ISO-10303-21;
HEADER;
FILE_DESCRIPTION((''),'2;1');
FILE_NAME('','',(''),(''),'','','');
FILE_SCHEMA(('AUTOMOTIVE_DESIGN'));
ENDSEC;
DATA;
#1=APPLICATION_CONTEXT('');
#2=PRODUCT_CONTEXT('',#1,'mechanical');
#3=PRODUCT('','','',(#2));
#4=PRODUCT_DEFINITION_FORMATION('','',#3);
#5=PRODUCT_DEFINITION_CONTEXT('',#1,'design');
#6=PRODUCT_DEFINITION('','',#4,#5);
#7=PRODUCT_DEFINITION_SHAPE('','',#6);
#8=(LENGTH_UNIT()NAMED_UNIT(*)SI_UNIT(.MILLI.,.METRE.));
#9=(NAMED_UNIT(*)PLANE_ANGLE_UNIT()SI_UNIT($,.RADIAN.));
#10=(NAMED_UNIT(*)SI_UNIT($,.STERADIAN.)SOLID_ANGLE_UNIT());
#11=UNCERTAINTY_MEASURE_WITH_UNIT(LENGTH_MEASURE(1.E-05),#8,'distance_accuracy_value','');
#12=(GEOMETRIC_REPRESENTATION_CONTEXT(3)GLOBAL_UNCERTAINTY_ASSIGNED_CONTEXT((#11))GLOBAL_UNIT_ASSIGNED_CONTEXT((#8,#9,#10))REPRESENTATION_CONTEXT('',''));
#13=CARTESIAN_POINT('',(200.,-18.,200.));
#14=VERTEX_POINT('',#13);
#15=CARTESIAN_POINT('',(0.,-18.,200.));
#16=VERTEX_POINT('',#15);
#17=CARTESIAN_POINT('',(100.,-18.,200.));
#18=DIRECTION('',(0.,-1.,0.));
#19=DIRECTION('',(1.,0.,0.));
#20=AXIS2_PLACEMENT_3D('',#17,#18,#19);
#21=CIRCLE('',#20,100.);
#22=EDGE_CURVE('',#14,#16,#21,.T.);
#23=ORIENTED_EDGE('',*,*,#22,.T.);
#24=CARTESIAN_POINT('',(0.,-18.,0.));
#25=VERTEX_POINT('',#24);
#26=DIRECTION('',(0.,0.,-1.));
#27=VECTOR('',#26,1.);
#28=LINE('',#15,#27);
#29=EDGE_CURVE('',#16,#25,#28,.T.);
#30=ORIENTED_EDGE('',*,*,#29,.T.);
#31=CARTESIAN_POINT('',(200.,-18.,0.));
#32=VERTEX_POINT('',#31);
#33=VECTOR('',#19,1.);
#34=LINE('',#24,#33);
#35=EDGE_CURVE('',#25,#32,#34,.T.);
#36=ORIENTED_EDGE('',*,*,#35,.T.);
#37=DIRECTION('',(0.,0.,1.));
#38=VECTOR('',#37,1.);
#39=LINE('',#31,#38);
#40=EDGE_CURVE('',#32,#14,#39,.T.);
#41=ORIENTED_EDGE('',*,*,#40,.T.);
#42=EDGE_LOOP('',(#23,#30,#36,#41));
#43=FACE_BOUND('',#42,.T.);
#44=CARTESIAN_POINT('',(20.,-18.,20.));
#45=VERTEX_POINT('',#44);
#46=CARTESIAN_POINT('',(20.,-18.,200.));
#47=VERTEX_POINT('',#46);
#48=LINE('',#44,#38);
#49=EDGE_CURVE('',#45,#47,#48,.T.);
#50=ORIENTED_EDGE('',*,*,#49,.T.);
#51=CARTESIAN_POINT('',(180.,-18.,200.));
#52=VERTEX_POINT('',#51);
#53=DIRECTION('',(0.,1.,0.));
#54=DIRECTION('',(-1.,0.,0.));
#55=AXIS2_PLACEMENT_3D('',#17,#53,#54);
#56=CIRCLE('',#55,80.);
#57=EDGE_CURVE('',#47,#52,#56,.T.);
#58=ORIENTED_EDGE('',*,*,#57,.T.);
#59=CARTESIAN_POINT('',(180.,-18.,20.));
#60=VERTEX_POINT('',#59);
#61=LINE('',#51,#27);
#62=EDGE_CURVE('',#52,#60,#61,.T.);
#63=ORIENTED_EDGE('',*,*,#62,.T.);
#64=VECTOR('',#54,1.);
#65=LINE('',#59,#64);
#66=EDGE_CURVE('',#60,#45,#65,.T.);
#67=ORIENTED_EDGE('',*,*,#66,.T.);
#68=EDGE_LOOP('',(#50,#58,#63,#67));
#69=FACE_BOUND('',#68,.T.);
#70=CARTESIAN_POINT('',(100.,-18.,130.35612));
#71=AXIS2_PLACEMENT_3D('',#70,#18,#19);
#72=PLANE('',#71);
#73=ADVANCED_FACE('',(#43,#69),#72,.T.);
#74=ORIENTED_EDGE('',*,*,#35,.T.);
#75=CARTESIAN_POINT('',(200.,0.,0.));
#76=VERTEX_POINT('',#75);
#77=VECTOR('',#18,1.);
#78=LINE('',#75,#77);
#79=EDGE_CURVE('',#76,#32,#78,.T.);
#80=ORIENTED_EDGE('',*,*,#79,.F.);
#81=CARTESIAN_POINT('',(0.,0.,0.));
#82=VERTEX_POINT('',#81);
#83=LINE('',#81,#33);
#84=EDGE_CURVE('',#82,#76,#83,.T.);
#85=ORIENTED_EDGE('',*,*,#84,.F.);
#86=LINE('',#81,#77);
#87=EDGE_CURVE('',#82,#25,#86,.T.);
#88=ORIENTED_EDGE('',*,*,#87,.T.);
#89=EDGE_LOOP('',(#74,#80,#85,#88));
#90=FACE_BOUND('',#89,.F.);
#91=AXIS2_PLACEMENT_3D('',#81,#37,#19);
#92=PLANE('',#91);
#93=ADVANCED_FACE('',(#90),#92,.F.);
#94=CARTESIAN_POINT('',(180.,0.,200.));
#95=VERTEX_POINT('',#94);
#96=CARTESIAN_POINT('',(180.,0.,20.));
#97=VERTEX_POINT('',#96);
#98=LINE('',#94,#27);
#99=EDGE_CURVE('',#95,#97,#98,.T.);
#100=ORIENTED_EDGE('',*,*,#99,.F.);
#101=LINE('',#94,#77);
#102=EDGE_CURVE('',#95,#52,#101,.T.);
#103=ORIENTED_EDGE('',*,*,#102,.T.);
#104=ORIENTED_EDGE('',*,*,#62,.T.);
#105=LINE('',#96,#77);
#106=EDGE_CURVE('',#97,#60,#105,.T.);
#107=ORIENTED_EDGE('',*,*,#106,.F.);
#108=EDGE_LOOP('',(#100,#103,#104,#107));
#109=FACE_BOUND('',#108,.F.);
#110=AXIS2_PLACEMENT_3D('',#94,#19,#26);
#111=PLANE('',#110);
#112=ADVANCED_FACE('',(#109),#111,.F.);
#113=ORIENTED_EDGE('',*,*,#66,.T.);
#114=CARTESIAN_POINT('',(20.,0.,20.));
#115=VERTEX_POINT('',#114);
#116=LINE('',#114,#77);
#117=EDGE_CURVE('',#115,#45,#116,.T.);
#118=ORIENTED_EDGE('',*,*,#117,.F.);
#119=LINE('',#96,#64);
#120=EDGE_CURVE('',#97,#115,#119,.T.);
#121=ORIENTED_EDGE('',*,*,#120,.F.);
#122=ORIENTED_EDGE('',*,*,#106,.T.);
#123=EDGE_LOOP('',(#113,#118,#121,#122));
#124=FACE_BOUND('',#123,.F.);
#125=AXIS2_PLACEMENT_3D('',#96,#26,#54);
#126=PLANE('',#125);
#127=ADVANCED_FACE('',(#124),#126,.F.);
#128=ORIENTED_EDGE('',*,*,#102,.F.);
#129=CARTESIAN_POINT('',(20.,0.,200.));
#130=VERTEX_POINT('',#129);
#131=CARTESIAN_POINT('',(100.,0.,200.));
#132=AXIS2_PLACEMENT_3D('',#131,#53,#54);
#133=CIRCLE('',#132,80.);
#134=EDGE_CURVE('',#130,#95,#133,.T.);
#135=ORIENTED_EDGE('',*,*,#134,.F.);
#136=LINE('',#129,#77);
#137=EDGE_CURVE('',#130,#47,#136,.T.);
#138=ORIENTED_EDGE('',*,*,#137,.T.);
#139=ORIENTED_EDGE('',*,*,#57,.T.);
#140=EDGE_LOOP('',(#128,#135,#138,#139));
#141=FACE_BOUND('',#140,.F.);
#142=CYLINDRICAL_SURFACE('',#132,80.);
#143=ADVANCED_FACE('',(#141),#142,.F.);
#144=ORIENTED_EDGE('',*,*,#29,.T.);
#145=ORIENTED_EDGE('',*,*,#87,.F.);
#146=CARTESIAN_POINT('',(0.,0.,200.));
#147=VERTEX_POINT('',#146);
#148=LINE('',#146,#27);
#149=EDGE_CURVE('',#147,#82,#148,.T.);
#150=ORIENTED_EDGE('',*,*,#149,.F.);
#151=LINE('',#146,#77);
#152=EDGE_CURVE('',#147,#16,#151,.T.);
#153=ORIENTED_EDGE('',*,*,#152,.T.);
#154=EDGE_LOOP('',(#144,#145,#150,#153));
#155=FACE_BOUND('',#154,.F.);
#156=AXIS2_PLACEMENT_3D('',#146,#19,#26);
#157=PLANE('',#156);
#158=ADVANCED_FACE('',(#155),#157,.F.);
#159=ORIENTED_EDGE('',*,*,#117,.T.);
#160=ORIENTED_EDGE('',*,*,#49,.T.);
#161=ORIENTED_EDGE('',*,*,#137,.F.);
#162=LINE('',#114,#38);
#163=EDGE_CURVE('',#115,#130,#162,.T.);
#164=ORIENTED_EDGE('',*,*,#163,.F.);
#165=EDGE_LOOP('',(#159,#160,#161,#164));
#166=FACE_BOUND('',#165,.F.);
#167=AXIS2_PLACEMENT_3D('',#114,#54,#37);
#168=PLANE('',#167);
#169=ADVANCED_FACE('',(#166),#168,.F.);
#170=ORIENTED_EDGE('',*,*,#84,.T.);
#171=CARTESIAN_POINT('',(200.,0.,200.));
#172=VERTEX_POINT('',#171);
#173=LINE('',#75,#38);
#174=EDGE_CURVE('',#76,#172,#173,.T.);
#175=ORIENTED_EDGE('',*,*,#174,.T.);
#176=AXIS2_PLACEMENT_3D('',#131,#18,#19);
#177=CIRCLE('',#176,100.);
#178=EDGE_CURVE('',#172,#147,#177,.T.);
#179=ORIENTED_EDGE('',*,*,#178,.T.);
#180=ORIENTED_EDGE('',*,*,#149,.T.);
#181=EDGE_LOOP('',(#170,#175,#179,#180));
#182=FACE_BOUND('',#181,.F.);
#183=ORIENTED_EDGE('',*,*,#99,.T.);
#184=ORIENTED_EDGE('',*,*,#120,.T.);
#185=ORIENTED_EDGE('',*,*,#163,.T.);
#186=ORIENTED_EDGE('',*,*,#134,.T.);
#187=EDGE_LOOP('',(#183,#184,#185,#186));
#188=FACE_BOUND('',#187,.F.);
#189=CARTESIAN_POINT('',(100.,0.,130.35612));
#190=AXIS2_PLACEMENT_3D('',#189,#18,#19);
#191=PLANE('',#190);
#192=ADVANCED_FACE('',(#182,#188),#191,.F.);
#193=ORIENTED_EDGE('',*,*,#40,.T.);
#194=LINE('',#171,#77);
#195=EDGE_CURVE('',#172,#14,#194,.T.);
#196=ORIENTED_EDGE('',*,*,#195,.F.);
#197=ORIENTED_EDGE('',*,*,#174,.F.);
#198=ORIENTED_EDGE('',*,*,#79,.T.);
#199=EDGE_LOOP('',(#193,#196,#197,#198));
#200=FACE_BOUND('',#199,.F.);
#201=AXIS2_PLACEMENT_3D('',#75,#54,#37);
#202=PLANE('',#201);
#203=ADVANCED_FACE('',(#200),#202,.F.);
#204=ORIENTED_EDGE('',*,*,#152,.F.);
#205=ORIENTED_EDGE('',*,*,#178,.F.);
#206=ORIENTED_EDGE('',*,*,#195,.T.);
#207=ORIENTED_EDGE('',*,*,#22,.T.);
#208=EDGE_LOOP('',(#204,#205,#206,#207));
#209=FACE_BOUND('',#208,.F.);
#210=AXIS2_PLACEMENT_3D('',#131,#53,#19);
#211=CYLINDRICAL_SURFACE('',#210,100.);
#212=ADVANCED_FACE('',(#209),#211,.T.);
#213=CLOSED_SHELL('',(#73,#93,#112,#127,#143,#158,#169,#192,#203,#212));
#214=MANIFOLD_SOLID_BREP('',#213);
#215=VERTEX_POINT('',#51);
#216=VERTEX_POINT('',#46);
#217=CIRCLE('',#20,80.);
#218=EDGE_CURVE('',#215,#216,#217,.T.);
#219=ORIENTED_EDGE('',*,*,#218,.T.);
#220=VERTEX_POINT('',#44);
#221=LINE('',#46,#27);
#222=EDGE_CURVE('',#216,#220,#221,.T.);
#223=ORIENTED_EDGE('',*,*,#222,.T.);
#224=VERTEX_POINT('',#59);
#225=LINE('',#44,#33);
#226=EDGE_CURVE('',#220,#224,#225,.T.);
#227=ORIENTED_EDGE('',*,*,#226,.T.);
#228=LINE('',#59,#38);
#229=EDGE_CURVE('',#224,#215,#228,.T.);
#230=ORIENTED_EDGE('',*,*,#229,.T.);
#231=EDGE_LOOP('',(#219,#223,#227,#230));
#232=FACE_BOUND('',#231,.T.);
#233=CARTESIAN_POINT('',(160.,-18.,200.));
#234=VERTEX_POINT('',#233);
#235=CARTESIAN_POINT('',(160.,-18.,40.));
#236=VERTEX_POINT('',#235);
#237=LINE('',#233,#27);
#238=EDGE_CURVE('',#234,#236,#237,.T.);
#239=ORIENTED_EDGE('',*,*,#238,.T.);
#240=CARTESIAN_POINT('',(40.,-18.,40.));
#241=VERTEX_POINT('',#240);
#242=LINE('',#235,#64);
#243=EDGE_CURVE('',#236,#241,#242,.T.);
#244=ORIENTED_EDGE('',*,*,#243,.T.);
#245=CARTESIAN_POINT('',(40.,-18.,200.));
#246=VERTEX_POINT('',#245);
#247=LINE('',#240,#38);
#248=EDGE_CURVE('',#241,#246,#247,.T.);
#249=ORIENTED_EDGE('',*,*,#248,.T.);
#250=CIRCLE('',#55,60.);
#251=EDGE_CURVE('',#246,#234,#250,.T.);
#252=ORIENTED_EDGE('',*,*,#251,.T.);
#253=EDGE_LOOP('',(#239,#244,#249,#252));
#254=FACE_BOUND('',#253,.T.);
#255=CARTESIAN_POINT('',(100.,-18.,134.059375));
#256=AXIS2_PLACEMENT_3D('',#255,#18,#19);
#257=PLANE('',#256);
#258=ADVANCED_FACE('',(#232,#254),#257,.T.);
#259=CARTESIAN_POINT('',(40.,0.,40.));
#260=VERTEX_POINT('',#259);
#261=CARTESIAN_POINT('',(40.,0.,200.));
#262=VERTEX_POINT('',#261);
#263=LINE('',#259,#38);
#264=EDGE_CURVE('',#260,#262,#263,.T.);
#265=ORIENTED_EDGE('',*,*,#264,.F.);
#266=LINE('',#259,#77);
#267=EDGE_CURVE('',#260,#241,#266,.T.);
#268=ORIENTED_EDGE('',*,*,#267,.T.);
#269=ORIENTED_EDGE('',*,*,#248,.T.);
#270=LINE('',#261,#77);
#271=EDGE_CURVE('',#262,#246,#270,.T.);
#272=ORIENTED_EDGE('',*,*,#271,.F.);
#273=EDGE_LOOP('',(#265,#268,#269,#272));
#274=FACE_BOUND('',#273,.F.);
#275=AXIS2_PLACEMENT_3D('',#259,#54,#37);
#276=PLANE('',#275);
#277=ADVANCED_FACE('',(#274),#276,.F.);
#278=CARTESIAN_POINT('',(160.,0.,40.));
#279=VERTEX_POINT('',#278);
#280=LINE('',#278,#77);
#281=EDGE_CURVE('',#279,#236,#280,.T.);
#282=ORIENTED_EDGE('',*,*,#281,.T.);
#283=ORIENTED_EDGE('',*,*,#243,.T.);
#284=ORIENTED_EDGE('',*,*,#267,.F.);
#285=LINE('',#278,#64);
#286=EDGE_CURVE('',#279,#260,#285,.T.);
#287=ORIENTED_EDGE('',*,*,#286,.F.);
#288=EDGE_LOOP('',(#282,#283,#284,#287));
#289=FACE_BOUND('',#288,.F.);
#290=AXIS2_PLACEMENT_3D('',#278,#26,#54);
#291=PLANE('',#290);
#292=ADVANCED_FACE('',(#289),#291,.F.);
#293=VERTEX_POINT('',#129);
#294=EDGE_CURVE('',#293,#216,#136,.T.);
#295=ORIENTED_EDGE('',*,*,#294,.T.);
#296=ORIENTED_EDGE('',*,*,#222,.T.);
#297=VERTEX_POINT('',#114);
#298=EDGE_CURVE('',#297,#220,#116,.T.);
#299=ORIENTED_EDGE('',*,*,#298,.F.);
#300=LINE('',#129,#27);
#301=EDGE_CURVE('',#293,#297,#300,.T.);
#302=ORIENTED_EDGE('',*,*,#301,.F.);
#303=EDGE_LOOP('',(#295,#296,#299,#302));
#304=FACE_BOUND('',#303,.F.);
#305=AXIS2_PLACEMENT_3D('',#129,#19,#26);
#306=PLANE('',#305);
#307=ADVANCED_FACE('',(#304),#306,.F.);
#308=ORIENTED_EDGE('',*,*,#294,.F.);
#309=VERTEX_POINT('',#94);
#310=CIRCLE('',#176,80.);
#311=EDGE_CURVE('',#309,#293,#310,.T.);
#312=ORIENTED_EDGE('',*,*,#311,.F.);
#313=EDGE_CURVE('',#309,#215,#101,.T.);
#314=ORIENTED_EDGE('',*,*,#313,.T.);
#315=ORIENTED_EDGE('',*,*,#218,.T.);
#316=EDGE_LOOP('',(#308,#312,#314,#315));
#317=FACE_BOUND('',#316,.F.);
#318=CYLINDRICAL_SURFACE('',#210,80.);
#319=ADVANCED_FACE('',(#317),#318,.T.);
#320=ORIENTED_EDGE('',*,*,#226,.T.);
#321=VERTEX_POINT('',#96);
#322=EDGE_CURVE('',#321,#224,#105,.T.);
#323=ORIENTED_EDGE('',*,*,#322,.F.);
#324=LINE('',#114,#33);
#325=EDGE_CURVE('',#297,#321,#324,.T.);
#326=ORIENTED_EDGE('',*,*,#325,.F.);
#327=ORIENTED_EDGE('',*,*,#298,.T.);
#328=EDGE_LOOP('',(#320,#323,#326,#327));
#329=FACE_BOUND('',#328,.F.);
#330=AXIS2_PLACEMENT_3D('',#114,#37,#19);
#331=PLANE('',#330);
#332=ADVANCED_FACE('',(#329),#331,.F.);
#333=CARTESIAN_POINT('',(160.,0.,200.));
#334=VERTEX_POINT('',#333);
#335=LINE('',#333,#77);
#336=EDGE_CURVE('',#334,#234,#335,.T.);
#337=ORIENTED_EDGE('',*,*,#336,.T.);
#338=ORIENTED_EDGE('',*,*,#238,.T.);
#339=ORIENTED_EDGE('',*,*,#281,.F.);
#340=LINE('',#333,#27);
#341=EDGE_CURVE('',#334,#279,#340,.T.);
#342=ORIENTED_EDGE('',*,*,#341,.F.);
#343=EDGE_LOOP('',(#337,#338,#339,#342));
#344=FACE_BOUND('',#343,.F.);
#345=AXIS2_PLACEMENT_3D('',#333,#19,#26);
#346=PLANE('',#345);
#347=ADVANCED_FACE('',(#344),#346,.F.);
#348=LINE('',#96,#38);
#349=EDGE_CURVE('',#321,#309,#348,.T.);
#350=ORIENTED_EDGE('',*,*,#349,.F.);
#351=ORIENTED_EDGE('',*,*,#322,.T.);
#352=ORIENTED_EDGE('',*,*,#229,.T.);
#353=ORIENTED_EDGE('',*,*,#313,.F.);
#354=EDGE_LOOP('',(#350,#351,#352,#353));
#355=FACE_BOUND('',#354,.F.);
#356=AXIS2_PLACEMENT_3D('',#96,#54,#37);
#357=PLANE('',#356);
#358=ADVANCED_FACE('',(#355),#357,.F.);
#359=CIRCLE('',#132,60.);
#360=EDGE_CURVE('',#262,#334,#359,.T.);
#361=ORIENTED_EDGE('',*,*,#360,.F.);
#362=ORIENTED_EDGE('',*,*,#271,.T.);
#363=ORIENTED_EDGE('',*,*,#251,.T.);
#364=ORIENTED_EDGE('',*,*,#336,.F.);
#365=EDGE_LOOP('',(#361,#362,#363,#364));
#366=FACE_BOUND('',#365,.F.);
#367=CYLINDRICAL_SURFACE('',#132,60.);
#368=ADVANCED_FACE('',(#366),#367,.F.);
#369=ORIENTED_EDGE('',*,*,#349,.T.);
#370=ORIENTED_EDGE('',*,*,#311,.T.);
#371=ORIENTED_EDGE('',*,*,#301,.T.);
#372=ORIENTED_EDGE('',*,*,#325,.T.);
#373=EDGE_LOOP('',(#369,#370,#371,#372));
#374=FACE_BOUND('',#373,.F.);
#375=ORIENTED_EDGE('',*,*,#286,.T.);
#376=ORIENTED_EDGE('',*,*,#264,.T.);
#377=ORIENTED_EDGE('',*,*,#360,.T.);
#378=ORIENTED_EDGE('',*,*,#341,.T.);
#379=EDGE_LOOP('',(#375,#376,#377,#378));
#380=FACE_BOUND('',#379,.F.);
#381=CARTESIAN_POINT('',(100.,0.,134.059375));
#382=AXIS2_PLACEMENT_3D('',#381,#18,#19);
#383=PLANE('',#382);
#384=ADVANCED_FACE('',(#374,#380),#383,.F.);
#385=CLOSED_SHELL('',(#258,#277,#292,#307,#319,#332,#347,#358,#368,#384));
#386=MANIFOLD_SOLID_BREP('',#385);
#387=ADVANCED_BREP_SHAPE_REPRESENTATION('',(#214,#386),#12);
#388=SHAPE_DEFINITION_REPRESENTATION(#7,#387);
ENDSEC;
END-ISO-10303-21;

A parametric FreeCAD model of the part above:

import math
import FreeCAD as App
import Part
import Sketcher

V = App.Vector
Q = App.Units.Quantity

doc = App.newDocument("Part")
body = doc.addObject("PartDesign::Body", "Body")

sketch1 = body.newObject("Sketcher::SketchObject", "Sketch")
sketch1.AttachmentSupport = (doc.getObject("XZ_Plane"), [""])
sketch1.MapMode = "FlatFace"
sketch1.addGeometry([
    Part.LineSegment(V(20, 200, 0), V(20, 20, 0)),
    Part.LineSegment(V(20, 20, 0), V(180, 20, 0)),
    Part.LineSegment(V(180, 20, 0), V(180, 200, 0)),
    Part.ArcOfCircle(Part.Circle(V(100, 200, 0), V(0, 0, 1), 80), math.radians(0), math.radians(180)),
    Part.LineSegment(V(40, 40, 0), V(40, 200, 0)),
    Part.ArcOfCircle(Part.Circle(V(100, 200, 0), V(0, 0, 1), 60), math.radians(0), math.radians(180)),
    Part.LineSegment(V(160, 200, 0), V(160, 40, 0)),
    Part.LineSegment(V(160, 40, 0), V(40, 40, 0)),
], False)
sketch1.addConstraint([
    Sketcher.Constraint("Coincident", 0, 2, 1, 1),
    Sketcher.Constraint("Coincident", 1, 2, 2, 1),
    Sketcher.Constraint("Tangent", 2, 2, 3, 1),
    Sketcher.Constraint("Tangent", 3, 2, 0, 1),
    Sketcher.Constraint("Tangent", 4, 2, 5, 2),
    Sketcher.Constraint("Tangent", 5, 1, 6, 1),
    Sketcher.Constraint("Coincident", 6, 2, 7, 1),
    Sketcher.Constraint("Coincident", 7, 2, 4, 1),
    Sketcher.Constraint("Vertical", 0),
    Sketcher.Constraint("Horizontal", 1),
    Sketcher.Constraint("Vertical", 2),
    Sketcher.Constraint("Vertical", 4),
    Sketcher.Constraint("Vertical", 6),
    Sketcher.Constraint("Horizontal", 7),
    Sketcher.Constraint("Coincident", 5, 3, 3, 3),
    Sketcher.Constraint("Equal", 1, 4),
    Sketcher.Constraint("Radius", 3, Q("80 mm")),
    Sketcher.Constraint("Radius", 5, Q("60 mm")),
    Sketcher.Constraint("DistanceY", 0, 2, 0, 1, Q("180 mm")),
    Sketcher.Constraint("DistanceX", -1, 1, 3, 3, Q("100 mm")),
    Sketcher.Constraint("DistanceY", -1, 1, 3, 3, Q("200 mm")),
])
pad1 = body.newObject("PartDesign::Pad", "Pad")
pad1.Profile = sketch1
pad1.Length = 18
body2 = doc.addObject("PartDesign::Body", "Body001")

sketch2 = body2.newObject("Sketcher::SketchObject", "Sketch001")
sketch2.AttachmentSupport = (doc.getObject("XZ_Plane001"), [""])
sketch2.MapMode = "FlatFace"
sketch2.addGeometry([
    Part.LineSegment(V(0, 200, 0), V(0, 0, 0)),
    Part.LineSegment(V(0, 0, 0), V(200, 0, 0)),
    Part.LineSegment(V(200, 0, 0), V(200, 200, 0)),
    Part.ArcOfCircle(Part.Circle(V(100, 200, 0), V(0, 0, 1), 100), math.radians(0), math.radians(180)),
    Part.LineSegment(V(180, 200, 0), V(180, 20, 0)),
    Part.LineSegment(V(180, 20, 0), V(20, 20, 0)),
    Part.LineSegment(V(20, 20, 0), V(20, 200, 0)),
    Part.ArcOfCircle(Part.Circle(V(100, 200, 0), V(0, 0, 1), 80), math.radians(0), math.radians(180)),
], False)
sketch2.addConstraint([
    Sketcher.Constraint("Coincident", 0, 2, 1, 1),
    Sketcher.Constraint("Coincident", 1, 2, 2, 1),
    Sketcher.Constraint("Tangent", 2, 2, 3, 1),
    Sketcher.Constraint("Tangent", 3, 2, 0, 1),
    Sketcher.Constraint("Coincident", 4, 2, 5, 1),
    Sketcher.Constraint("Coincident", 5, 2, 6, 1),
    Sketcher.Constraint("Tangent", 6, 2, 7, 2),
    Sketcher.Constraint("Tangent", 7, 1, 4, 1),
    Sketcher.Constraint("Vertical", 0),
    Sketcher.Constraint("Horizontal", 1),
    Sketcher.Constraint("Vertical", 2),
    Sketcher.Constraint("Vertical", 4),
    Sketcher.Constraint("Horizontal", 5),
    Sketcher.Constraint("Vertical", 6),
    Sketcher.Constraint("Coincident", 0, 2, -1, 1),
    Sketcher.Constraint("Coincident", 7, 3, 3, 3),
    Sketcher.Constraint("Equal", 1, 0),
    Sketcher.Constraint("Radius", 3, Q("100 mm")),
    Sketcher.Constraint("Radius", 7, Q("80 mm")),
    Sketcher.Constraint("DistanceY", 4, 2, 4, 1, Q("180 mm")),
])
pad2 = body2.newObject("PartDesign::Pad", "Pad001")
pad2.Profile = sketch2
pad2.Length = 18

doc.recompute()
